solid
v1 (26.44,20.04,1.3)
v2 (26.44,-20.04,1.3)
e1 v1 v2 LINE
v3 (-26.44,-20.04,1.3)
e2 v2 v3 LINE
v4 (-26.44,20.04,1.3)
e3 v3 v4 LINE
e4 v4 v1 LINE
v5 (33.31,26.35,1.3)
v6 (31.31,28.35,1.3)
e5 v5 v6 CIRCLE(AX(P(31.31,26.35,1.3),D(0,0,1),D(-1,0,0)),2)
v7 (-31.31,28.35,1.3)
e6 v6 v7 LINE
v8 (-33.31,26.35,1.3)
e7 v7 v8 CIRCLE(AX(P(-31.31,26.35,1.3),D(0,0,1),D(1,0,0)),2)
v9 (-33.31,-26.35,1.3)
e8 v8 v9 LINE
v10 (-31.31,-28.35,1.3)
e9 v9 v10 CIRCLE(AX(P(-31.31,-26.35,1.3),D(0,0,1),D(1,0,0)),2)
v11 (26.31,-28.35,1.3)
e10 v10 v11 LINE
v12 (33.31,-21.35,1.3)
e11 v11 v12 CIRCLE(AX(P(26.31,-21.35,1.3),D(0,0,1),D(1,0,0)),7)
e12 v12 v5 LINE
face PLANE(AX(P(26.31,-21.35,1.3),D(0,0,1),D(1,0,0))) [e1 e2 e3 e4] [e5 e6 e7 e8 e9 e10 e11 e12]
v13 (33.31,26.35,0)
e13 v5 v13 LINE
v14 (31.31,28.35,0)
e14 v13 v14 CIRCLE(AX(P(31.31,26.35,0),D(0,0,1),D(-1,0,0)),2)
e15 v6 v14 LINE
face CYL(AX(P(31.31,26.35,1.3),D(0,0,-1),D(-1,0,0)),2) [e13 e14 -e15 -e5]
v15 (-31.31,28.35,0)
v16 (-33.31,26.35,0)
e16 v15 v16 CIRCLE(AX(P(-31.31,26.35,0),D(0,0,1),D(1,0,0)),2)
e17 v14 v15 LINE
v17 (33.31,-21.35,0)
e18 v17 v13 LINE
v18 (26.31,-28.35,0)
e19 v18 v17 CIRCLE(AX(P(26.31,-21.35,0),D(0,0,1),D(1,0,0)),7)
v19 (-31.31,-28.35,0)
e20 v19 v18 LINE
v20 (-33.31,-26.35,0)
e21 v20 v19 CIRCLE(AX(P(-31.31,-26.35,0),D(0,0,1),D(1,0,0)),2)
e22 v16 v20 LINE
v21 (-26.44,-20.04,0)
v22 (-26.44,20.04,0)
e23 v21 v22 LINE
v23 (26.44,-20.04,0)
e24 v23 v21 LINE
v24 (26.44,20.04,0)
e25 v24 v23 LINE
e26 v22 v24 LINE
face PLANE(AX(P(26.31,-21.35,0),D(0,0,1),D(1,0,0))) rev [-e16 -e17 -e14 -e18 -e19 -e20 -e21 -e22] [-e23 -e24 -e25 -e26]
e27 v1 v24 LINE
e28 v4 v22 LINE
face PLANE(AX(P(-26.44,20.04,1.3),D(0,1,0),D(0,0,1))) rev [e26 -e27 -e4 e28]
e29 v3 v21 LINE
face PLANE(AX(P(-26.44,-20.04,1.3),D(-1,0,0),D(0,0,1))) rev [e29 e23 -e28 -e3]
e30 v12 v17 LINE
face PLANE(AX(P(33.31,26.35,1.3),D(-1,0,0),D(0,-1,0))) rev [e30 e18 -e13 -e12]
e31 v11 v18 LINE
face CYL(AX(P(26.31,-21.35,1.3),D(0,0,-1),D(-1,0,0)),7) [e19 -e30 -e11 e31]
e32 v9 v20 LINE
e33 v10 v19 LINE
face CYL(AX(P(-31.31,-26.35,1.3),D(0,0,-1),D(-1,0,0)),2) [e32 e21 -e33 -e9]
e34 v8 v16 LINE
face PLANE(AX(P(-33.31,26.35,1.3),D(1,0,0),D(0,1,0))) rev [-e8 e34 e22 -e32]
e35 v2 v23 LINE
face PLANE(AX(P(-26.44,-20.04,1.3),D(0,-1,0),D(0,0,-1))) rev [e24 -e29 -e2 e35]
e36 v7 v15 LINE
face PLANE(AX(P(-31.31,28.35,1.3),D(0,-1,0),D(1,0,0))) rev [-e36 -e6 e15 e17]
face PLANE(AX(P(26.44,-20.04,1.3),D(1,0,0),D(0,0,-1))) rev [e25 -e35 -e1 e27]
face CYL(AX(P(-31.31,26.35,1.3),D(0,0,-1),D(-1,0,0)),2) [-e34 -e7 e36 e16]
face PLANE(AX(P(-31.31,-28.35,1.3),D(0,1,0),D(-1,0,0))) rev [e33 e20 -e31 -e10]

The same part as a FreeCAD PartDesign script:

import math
import FreeCAD as App
import Part
import Sketcher

V = App.Vector
Q = App.Units.Quantity


def add_polygon(sketch, points):
    """Adds a closed chain of lines whose ends are joined by coincident constraints."""
    first, n = sketch.GeometryCount, len(points)
    for a, b in zip(points, points[1:] + points[:1]):
        sketch.addGeometry(Part.LineSegment(App.Vector(*a, 0), App.Vector(*b, 0)), False)
    for i in range(n):
        sketch.addConstraint(Sketcher.Constraint("Coincident", first + i, 2, first + (i + 1) % n, 1))

doc = App.newDocument("Part")
params = doc.addObject("Spreadsheet::Sheet", "Params")
for row, (alias, value) in enumerate([
    ("sketch1_radius", "2 mm"),
    ("sketch1_radius2", "7 mm"),
    ("sketch1_height", "52.7 mm"),
    ("sketch1_width", "62.62 mm"),
    ("pad1_length", "1.3 mm"),
    ("sketch2_width", "52.88 mm"),
    ("sketch2_height", "40.08 mm"),
], start=1):
    params.set(f"A{row}", alias)
    params.set(f"B{row}", "=" + value)
    params.setAlias(f"B{row}", alias)

body = doc.addObject("PartDesign::Body", "Body")

# Sketch on XY plane
sketch1 = body.newObject("Sketcher::SketchObject", "Sketch")
sketch1.AttachmentSupport = (doc.getObject("XY_Plane"), [""])
sketch1.MapMode = "FlatFace"
sketch1.addGeometry([
    Part.LineSegment(V(31.3, 28.4, 0), V(-31.3, 28.4, 0)),  # 0
    Part.ArcOfCircle(Part.Circle(V(-31.3, 26.3, 0), V(0, 0, 1), 2), math.radians(90), math.radians(180)),  # 1
    Part.LineSegment(V(-33.3, 26.4, 0), V(-33.3, -26.4, 0)),  # 2
    Part.ArcOfCircle(Part.Circle(V(-31.3, -26.3, 0), V(0, 0, 1), 2), math.radians(-180), math.radians(-90)),  # 3
    Part.LineSegment(V(-31.3, -28.4, 0), V(26.3, -28.4, 0)),  # 4
    Part.ArcOfCircle(Part.Circle(V(26.3, -21.3, 0), V(0, 0, 1), 7), math.radians(-90), math.radians(0)),  # 5
    Part.LineSegment(V(33.3, -21.4, 0), V(33.3, 26.4, 0)),  # 6
    Part.ArcOfCircle(Part.Circle(V(31.3, 26.3, 0), V(0, 0, 1), 2), math.radians(0), math.radians(90)),  # 7
], False)
sketch1.addConstraint([
    Sketcher.Constraint("Tangent", 0, 2, 1, 1),
    Sketcher.Constraint("Tangent", 1, 2, 2, 1),
    Sketcher.Constraint("Tangent", 2, 2, 3, 1),
    Sketcher.Constraint("Tangent", 3, 2, 4, 1),
    Sketcher.Constraint("Tangent", 4, 2, 5, 1),
    Sketcher.Constraint("Tangent", 5, 2, 6, 1),
    Sketcher.Constraint("Tangent", 6, 2, 7, 1),
    Sketcher.Constraint("Tangent", 7, 2, 0, 1),
    Sketcher.Constraint("Horizontal", 0),
    Sketcher.Constraint("Vertical", 2),
    Sketcher.Constraint("Horizontal", 4),
    Sketcher.Constraint("Vertical", 6),
    Sketcher.Constraint("Equal", 1, 3),
    Sketcher.Constraint("Equal", 3, 7),
    Sketcher.Constraint("Symmetric", 3, 3, 7, 3, -1, 1),
    Sketcher.Constraint("Radius", 1, Q("2 mm")),
    Sketcher.Constraint("Radius", 5, Q("7 mm")),
    Sketcher.Constraint("DistanceY", 2, 2, 2, 1, Q("52.7 mm")),
    Sketcher.Constraint("DistanceX", 0, 2, 0, 1, Q("62.62 mm")),
])
sketch1.setExpression("Constraints[15]", "Params.sketch1_radius")
sketch1.setExpression("Constraints[16]", "Params.sketch1_radius2")
sketch1.setExpression("Constraints[17]", "Params.sketch1_height")
sketch1.setExpression("Constraints[18]", "Params.sketch1_width")
pad1 = body.newObject("PartDesign::Pad", "Pad")
pad1.Profile = sketch1
pad1.setExpression("Length", "Params.pad1_length")

# Sketch on XY plane
sketch2 = body.newObject("Sketcher::SketchObject", "Sketch001")
sketch2.AttachmentSupport = (doc.getObject("XY_Plane"), [""])
sketch2.MapMode = "FlatFace"
add_polygon(sketch2, [(26, 20), (26, -20), (-26, -20), (-26, 20)])  # lines 0-3
sketch2.addConstraint([
    Sketcher.Constraint("Vertical", 0),
    Sketcher.Constraint("Horizontal", 1),
    Sketcher.Constraint("Vertical", 2),
    Sketcher.Constraint("Horizontal", 3),
    Sketcher.Constraint("Symmetric", 0, 2, 2, 2, -1, 1),
    Sketcher.Constraint("DistanceX", 1, 2, 1, 1, Q("52.88 mm")),
    Sketcher.Constraint("DistanceY", 0, 2, 0, 1, Q("40.08 mm")),
])
sketch2.setExpression("Constraints[9]", "Params.sketch2_width")
sketch2.setExpression("Constraints[10]", "Params.sketch2_height")
pocket1 = body.newObject("PartDesign::Pocket", "Pocket")
pocket1.Profile = sketch2
pocket1.Type = "ThroughAll"
pocket1.Reversed = True

doc.recompute()
